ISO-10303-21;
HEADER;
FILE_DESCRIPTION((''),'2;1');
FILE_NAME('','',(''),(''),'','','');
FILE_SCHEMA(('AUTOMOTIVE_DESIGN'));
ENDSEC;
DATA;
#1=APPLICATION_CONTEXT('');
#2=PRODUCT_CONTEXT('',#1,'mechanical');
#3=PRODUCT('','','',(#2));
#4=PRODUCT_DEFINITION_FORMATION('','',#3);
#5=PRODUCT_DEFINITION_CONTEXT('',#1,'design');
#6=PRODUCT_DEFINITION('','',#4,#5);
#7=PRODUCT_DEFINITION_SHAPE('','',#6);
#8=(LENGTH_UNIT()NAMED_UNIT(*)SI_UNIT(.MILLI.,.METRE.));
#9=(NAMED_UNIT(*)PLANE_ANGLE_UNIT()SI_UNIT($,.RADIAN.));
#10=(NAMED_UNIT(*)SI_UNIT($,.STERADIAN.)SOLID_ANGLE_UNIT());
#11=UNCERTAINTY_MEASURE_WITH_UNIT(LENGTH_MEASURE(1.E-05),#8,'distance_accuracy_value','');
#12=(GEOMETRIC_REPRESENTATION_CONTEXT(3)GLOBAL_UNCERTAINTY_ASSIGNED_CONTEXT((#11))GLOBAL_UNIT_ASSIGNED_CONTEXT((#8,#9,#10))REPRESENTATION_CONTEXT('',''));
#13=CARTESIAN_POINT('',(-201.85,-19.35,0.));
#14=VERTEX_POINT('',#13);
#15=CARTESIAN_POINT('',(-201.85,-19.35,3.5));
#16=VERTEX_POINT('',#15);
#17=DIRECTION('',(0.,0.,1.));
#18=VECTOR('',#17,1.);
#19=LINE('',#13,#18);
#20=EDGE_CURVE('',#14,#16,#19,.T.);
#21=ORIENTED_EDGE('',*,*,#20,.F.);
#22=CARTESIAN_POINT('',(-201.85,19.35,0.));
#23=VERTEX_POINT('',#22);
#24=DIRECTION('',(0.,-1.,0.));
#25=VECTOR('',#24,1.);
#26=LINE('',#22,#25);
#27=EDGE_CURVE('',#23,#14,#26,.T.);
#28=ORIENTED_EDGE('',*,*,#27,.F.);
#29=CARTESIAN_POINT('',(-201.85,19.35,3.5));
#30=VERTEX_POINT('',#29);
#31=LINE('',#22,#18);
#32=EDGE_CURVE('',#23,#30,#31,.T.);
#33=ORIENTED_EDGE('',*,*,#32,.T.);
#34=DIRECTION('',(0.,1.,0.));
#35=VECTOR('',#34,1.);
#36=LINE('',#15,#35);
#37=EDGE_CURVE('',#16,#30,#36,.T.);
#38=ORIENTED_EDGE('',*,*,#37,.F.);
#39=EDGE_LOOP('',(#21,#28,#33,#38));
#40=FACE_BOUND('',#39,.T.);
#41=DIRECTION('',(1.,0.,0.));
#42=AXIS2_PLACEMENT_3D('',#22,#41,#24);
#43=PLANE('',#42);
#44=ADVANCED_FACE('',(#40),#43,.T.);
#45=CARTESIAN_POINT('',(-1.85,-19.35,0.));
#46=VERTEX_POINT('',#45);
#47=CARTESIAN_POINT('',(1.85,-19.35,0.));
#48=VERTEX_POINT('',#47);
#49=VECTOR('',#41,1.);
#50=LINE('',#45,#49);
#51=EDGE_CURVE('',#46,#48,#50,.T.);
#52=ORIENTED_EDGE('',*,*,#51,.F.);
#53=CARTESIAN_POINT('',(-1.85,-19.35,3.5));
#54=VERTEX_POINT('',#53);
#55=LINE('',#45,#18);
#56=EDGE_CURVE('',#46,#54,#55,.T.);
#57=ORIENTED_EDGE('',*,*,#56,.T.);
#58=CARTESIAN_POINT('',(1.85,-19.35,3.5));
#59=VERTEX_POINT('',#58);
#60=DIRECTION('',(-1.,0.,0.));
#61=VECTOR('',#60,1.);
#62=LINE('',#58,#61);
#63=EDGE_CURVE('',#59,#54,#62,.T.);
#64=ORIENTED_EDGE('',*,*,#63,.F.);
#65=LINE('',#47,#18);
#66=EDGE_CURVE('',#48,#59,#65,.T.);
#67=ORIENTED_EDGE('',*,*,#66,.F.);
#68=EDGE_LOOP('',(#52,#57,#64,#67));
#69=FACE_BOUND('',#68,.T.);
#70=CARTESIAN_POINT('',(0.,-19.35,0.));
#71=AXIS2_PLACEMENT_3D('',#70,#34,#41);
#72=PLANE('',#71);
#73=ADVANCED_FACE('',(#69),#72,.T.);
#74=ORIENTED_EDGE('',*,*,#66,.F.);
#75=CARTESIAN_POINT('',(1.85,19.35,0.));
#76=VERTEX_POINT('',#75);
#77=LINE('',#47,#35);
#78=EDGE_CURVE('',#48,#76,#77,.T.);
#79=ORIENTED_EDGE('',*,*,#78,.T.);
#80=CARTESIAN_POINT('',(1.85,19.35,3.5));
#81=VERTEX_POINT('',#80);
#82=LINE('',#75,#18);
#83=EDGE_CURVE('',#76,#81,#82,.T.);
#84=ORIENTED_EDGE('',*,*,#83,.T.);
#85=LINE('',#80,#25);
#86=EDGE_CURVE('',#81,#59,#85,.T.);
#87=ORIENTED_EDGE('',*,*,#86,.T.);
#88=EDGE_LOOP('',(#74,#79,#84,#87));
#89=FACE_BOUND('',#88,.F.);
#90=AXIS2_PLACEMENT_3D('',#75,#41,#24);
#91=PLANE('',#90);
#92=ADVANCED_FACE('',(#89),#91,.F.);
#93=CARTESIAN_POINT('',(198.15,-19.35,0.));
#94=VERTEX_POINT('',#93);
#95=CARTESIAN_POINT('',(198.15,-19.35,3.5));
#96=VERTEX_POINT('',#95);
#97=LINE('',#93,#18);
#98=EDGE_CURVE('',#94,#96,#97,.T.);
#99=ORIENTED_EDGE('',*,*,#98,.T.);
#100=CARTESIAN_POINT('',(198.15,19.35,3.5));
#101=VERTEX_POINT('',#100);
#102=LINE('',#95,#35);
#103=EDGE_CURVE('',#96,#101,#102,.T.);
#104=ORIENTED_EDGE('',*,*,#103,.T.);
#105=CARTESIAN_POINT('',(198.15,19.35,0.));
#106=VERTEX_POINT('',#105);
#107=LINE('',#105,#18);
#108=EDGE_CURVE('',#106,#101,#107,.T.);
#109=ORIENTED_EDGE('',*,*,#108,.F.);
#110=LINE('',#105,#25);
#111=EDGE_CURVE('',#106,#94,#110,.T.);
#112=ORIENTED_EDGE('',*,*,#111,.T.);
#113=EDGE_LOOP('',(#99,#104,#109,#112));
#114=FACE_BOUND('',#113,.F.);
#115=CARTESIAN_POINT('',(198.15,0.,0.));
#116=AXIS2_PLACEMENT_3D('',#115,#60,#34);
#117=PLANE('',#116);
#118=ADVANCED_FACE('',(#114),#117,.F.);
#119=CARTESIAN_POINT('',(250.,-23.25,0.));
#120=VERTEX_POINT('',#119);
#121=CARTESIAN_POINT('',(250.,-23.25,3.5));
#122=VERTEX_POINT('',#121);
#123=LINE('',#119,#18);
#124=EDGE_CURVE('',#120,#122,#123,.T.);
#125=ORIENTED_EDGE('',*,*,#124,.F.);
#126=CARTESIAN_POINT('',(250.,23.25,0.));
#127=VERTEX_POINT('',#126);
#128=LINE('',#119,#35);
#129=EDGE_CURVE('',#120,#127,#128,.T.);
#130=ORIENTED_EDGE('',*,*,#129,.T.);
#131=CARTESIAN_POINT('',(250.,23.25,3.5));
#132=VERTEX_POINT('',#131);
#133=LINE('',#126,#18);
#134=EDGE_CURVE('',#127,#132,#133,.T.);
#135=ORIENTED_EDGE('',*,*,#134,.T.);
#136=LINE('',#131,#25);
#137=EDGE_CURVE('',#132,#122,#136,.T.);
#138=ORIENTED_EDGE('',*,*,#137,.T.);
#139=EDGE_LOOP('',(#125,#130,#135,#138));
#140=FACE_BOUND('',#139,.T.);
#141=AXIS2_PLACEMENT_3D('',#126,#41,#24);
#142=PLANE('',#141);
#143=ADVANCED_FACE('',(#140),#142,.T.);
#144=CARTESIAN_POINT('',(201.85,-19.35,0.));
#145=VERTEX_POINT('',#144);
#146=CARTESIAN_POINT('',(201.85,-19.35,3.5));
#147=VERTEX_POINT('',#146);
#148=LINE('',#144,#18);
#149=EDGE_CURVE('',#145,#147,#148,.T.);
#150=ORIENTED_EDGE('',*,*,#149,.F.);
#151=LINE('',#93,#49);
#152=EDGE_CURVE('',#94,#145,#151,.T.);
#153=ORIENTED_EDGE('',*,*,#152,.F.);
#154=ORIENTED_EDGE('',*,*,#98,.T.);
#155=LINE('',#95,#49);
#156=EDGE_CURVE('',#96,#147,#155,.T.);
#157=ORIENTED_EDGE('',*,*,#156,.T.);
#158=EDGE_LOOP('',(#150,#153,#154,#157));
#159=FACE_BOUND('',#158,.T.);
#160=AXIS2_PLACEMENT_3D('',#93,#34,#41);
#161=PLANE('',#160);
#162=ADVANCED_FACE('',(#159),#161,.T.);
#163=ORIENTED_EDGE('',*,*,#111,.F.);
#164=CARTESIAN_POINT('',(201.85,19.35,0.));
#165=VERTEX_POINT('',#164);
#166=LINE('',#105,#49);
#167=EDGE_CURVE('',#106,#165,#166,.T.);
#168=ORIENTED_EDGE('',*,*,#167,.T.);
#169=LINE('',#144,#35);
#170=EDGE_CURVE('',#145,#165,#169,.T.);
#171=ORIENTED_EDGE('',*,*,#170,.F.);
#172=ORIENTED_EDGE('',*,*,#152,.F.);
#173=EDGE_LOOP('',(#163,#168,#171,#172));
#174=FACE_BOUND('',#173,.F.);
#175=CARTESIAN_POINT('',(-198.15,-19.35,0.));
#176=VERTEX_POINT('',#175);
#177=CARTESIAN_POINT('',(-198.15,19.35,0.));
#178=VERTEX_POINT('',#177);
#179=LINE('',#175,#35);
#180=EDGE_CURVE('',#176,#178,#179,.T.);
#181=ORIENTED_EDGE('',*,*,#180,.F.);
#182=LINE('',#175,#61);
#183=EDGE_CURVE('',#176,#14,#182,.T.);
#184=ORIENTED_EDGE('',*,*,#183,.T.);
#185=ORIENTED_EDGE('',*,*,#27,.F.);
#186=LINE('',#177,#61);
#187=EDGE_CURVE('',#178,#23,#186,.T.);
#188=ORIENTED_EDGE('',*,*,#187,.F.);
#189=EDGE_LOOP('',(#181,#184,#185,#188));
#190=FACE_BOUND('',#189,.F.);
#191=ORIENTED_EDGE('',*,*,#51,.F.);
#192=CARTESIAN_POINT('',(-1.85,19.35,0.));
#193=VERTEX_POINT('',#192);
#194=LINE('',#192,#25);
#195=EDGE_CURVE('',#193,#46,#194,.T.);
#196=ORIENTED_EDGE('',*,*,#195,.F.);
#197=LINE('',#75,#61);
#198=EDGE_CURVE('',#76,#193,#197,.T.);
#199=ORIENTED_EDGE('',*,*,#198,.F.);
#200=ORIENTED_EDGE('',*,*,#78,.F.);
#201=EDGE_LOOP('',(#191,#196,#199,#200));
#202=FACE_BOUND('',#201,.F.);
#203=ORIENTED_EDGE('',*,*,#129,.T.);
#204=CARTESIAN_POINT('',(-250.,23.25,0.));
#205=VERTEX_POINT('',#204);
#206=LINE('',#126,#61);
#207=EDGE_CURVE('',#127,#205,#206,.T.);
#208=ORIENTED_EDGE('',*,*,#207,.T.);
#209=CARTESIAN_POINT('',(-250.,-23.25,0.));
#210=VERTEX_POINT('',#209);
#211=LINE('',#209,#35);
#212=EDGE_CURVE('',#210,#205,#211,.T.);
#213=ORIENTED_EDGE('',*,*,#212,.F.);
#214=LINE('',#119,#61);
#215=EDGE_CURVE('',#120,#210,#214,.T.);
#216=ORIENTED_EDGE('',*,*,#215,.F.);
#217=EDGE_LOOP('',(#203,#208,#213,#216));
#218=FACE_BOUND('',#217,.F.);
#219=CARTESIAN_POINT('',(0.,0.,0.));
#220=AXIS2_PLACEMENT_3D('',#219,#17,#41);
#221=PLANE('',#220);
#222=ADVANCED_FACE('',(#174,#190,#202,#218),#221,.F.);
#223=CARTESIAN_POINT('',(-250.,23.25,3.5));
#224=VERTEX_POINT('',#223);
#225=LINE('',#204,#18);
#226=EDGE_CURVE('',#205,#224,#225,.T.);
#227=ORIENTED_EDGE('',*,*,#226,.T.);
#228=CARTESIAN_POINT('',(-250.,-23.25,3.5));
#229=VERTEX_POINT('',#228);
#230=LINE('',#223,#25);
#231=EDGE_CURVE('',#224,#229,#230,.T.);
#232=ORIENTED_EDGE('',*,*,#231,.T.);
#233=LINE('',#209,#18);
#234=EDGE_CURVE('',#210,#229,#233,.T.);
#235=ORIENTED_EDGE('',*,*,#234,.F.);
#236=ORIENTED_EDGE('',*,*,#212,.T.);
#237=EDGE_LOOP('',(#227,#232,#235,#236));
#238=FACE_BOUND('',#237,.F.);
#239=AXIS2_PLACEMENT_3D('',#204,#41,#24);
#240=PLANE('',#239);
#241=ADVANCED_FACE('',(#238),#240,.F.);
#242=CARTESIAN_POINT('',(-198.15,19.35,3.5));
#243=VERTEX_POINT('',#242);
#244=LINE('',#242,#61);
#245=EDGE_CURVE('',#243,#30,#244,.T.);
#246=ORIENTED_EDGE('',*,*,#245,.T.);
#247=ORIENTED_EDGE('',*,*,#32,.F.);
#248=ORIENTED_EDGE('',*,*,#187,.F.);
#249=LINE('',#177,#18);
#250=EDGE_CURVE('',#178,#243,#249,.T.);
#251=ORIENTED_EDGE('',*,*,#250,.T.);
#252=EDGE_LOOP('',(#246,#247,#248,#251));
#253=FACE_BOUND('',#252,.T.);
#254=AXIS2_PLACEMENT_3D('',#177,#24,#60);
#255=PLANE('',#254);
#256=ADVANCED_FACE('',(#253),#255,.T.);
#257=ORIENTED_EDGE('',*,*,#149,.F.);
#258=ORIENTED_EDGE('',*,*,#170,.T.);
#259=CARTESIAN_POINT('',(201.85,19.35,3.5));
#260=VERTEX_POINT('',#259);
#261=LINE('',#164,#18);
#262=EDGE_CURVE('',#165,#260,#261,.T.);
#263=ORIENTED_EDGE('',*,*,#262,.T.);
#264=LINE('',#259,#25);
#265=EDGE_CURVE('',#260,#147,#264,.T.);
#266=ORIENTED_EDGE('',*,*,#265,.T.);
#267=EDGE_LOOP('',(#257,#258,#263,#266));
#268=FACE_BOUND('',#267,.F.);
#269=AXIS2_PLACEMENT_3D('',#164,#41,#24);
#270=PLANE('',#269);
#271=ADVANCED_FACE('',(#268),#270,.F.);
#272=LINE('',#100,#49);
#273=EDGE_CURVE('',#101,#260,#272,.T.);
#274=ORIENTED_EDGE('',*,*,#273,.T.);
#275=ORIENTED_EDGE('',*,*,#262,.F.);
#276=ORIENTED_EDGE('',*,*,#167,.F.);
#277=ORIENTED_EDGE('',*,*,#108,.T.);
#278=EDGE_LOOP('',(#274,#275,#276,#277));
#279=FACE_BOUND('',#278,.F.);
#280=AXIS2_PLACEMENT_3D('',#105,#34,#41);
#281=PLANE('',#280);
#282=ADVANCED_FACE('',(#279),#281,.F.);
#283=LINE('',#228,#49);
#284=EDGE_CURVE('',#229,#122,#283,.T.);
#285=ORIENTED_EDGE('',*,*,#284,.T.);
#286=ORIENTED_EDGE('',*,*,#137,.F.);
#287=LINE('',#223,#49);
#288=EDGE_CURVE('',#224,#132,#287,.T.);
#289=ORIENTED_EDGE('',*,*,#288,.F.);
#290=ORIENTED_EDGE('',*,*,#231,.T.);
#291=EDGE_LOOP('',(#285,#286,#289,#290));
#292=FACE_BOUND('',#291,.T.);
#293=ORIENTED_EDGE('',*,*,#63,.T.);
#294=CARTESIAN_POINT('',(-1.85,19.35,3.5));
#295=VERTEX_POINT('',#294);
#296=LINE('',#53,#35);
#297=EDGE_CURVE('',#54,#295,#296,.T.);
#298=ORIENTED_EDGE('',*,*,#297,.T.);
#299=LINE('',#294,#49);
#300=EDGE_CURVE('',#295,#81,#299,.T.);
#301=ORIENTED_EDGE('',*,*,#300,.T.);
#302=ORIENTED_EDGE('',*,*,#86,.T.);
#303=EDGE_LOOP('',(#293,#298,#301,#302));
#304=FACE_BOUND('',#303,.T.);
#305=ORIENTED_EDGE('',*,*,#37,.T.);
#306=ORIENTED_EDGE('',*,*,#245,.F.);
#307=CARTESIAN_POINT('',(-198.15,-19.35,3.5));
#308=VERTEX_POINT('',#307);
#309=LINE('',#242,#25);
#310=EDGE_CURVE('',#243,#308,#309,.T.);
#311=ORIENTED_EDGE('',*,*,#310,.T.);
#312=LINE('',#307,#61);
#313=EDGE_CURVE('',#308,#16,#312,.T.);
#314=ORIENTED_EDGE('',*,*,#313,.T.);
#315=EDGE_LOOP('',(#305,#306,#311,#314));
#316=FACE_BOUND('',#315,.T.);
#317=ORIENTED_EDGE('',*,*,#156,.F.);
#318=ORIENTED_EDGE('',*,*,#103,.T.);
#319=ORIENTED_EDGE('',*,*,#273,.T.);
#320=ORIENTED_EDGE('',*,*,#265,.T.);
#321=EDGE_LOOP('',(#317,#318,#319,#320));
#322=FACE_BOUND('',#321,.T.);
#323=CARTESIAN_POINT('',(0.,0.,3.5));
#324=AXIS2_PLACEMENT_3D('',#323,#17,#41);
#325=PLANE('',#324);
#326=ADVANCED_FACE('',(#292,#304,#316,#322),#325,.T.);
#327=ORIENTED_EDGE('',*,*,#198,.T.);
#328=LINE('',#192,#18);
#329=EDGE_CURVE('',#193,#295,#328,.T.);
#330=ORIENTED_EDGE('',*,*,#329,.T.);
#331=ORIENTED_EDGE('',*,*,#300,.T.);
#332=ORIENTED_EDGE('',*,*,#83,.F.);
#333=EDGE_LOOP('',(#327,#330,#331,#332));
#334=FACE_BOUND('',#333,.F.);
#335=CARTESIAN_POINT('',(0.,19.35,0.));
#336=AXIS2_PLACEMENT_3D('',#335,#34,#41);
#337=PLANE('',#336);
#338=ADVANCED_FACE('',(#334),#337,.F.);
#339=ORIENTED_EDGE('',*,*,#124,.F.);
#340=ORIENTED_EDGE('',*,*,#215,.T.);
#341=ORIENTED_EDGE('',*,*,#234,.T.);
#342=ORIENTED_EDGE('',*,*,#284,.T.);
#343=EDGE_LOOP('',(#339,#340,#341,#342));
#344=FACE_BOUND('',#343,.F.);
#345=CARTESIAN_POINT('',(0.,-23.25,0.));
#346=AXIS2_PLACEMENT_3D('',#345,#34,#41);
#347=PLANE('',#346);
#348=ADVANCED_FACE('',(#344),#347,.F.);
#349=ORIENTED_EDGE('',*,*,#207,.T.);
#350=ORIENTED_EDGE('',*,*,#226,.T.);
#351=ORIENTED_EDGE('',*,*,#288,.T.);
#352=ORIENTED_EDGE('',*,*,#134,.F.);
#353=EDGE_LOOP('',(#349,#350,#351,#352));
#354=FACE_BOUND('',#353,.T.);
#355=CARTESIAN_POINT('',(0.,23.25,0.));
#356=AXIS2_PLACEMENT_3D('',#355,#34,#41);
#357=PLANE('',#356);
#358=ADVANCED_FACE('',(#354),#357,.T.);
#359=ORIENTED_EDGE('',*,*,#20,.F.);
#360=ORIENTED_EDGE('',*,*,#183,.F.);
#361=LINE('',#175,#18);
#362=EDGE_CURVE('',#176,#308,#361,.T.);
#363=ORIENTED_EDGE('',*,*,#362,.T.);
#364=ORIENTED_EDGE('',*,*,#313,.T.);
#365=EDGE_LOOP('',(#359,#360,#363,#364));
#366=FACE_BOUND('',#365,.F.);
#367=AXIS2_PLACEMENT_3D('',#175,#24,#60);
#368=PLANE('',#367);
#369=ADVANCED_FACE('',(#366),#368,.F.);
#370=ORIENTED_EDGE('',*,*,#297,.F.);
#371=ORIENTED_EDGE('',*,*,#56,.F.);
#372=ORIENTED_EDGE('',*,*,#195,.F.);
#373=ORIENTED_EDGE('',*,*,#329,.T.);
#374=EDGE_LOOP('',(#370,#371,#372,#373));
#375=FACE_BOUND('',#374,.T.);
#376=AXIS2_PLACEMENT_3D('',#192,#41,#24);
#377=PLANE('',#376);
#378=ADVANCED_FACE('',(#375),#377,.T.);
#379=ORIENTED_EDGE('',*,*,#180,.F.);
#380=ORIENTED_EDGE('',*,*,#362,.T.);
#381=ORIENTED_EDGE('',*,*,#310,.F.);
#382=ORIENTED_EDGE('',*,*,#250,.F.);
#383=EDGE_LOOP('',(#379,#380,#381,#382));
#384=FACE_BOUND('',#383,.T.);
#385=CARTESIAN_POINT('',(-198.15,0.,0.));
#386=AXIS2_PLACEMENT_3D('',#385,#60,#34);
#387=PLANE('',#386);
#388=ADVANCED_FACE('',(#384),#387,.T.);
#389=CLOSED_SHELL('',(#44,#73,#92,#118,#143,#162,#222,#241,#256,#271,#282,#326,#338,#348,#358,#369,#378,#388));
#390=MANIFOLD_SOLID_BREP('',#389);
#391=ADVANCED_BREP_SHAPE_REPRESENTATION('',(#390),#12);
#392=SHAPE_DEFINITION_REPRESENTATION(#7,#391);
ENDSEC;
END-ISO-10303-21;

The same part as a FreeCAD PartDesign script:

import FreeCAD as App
import Part
import Sketcher

doc = App.newDocument("Part")
body = doc.addObject("PartDesign::Body", "Body")

sketch1 = body.newObject("Sketcher::SketchObject", "Sketch")
sketch1.AttachmentSupport = (doc.getObject("XY_Plane"), [""])
sketch1.MapMode = "FlatFace"
sketch1.addGeometry(Part.LineSegment(App.Vector(250, 23.25, 0), App.Vector(-250, 23.25, 0)), False)
sketch1.addGeometry(Part.LineSegment(App.Vector(-250, 23.25, 0), App.Vector(-250, -23.25, 0)), False)
sketch1.addGeometry(Part.LineSegment(App.Vector(-250, -23.25, 0), App.Vector(250, -23.25, 0)), False)
sketch1.addGeometry(Part.LineSegment(App.Vector(250, -23.25, 0), App.Vector(250, 23.25, 0)), False)
sketch1.addGeometry(Part.LineSegment(App.Vector(201.85, 19.35, 0), App.Vector(201.85, -19.35, 0)), False)
sketch1.addGeometry(Part.LineSegment(App.Vector(201.85, -19.35, 0), App.Vector(198.15, -19.35, 0)), False)
sketch1.addGeometry(Part.LineSegment(App.Vector(198.15, -19.35, 0), App.Vector(198.15, 19.35, 0)), False)
sketch1.addGeometry(Part.LineSegment(App.Vector(198.15, 19.35, 0), App.Vector(201.85, 19.35, 0)), False)
sketch1.addGeometry(Part.LineSegment(App.Vector(1.85, 19.35, 0), App.Vector(1.85, -19.35, 0)), False)
sketch1.addGeometry(Part.LineSegment(App.Vector(1.85, -19.35, 0), App.Vector(-1.85, -19.35, 0)), False)
sketch1.addGeometry(Part.LineSegment(App.Vector(-1.85, -19.35, 0), App.Vector(-1.85, 19.35, 0)), False)
sketch1.addGeometry(Part.LineSegment(App.Vector(-1.85, 19.35, 0), App.Vector(1.85, 19.35, 0)), False)
sketch1.addGeometry(Part.LineSegment(App.Vector(-198.15, 19.35, 0), App.Vector(-198.15, -19.35, 0)), False)
sketch1.addGeometry(Part.LineSegment(App.Vector(-198.15, -19.35, 0), App.Vector(-201.85, -19.35, 0)), False)
sketch1.addGeometry(Part.LineSegment(App.Vector(-201.85, -19.35, 0), App.Vector(-201.85, 19.35, 0)), False)
sketch1.addGeometry(Part.LineSegment(App.Vector(-201.85, 19.35, 0), App.Vector(-198.15, 19.35, 0)), False)
sketch1.addConstraint(Sketcher.Constraint("Coincident", 0, 2, 1, 1))
sketch1.addConstraint(Sketcher.Constraint("Coincident", 1, 2, 2, 1))
sketch1.addConstraint(Sketcher.Constraint("Coincident", 2, 2, 3, 1))
sketch1.addConstraint(Sketcher.Constraint("Coincident", 3, 2, 0, 1))
sketch1.addConstraint(Sketcher.Constraint("Coincident", 4, 2, 5, 1))
sketch1.addConstraint(Sketcher.Constraint("Coincident", 5, 2, 6, 1))
sketch1.addConstraint(Sketcher.Constraint("Coincident", 6, 2, 7, 1))
sketch1.addConstraint(Sketcher.Constraint("Coincident", 7, 2, 4, 1))
sketch1.addConstraint(Sketcher.Constraint("Coincident", 8, 2, 9, 1))
sketch1.addConstraint(Sketcher.Constraint("Coincident", 9, 2, 10, 1))
sketch1.addConstraint(Sketcher.Constraint("Coincident", 10, 2, 11, 1))
sketch1.addConstraint(Sketcher.Constraint("Coincident", 11, 2, 8, 1))
sketch1.addConstraint(Sketcher.Constraint("Coincident", 12, 2, 13, 1))
sketch1.addConstraint(Sketcher.Constraint("Coincident", 13, 2, 14, 1))
sketch1.addConstraint(Sketcher.Constraint("Coincident", 14, 2, 15, 1))
sketch1.addConstraint(Sketcher.Constraint("Coincident", 15, 2, 12, 1))
sketch1.addConstraint(Sketcher.Constraint("Horizontal", 0))
sketch1.addConstraint(Sketcher.Constraint("Vertical", 1))
sketch1.addConstraint(Sketcher.Constraint("Horizontal", 2))
sketch1.addConstraint(Sketcher.Constraint("Vertical", 3))
sketch1.addConstraint(Sketcher.Constraint("Vertical", 4))
sketch1.addConstraint(Sketcher.Constraint("Horizontal", 5))
sketch1.addConstraint(Sketcher.Constraint("Vertical", 6))
sketch1.addConstraint(Sketcher.Constraint("Horizontal", 7))
sketch1.addConstraint(Sketcher.Constraint("Vertical", 8))
sketch1.addConstraint(Sketcher.Constraint("Horizontal", 9))
sketch1.addConstraint(Sketcher.Constraint("Vertical", 10))
sketch1.addConstraint(Sketcher.Constraint("Horizontal", 11))
sketch1.addConstraint(Sketcher.Constraint("Vertical", 12))
sketch1.addConstraint(Sketcher.Constraint("Horizontal", 13))
sketch1.addConstraint(Sketcher.Constraint("Vertical", 14))
sketch1.addConstraint(Sketcher.Constraint("Horizontal", 15))
sketch1.addConstraint(Sketcher.Constraint("Symmetric", 0, 2, 2, 2, -1, 1))
sketch1.addConstraint(Sketcher.Constraint("Symmetric", 8, 2, 10, 2, -1, 1))
sketch1.addConstraint(Sketcher.Constraint("Symmetric", 6, 2, 12, 2, -1, 1))
sketch1.addConstraint(Sketcher.Constraint("Symmetric", 4, 2, 14, 2, -1, 1))
sketch1.addConstraint(Sketcher.Constraint("Horizontal", 5, 2, 8, 2))
sketch1.addConstraint(Sketcher.Constraint("Horizontal", 7, 2, 10, 2))
sketch1.addConstraint(Sketcher.Constraint("Equal", 7, 9))
sketch1.addConstraint(Sketcher.Constraint("DistanceX", 5, 2, 5, 1, 3.7))
sketch1.addConstraint(Sketcher.Constraint("DistanceX", 0, 2, -1, 1, 250.0))
sketch1.addConstraint(Sketcher.Constraint("DistanceY", -1, 1, 0, 2, 23.25))
sketch1.addConstraint(Sketcher.Constraint("DistanceY", 4, 2, -1, 1, 19.35))
sketch1.addConstraint(Sketcher.Constraint("DistanceX", 4, 2, 2, 2, 48.15))
pad1 = body.newObject("PartDesign::Pad", "Pad")
pad1.Profile = sketch1
pad1.Length = 3.5

doc.recompute()
